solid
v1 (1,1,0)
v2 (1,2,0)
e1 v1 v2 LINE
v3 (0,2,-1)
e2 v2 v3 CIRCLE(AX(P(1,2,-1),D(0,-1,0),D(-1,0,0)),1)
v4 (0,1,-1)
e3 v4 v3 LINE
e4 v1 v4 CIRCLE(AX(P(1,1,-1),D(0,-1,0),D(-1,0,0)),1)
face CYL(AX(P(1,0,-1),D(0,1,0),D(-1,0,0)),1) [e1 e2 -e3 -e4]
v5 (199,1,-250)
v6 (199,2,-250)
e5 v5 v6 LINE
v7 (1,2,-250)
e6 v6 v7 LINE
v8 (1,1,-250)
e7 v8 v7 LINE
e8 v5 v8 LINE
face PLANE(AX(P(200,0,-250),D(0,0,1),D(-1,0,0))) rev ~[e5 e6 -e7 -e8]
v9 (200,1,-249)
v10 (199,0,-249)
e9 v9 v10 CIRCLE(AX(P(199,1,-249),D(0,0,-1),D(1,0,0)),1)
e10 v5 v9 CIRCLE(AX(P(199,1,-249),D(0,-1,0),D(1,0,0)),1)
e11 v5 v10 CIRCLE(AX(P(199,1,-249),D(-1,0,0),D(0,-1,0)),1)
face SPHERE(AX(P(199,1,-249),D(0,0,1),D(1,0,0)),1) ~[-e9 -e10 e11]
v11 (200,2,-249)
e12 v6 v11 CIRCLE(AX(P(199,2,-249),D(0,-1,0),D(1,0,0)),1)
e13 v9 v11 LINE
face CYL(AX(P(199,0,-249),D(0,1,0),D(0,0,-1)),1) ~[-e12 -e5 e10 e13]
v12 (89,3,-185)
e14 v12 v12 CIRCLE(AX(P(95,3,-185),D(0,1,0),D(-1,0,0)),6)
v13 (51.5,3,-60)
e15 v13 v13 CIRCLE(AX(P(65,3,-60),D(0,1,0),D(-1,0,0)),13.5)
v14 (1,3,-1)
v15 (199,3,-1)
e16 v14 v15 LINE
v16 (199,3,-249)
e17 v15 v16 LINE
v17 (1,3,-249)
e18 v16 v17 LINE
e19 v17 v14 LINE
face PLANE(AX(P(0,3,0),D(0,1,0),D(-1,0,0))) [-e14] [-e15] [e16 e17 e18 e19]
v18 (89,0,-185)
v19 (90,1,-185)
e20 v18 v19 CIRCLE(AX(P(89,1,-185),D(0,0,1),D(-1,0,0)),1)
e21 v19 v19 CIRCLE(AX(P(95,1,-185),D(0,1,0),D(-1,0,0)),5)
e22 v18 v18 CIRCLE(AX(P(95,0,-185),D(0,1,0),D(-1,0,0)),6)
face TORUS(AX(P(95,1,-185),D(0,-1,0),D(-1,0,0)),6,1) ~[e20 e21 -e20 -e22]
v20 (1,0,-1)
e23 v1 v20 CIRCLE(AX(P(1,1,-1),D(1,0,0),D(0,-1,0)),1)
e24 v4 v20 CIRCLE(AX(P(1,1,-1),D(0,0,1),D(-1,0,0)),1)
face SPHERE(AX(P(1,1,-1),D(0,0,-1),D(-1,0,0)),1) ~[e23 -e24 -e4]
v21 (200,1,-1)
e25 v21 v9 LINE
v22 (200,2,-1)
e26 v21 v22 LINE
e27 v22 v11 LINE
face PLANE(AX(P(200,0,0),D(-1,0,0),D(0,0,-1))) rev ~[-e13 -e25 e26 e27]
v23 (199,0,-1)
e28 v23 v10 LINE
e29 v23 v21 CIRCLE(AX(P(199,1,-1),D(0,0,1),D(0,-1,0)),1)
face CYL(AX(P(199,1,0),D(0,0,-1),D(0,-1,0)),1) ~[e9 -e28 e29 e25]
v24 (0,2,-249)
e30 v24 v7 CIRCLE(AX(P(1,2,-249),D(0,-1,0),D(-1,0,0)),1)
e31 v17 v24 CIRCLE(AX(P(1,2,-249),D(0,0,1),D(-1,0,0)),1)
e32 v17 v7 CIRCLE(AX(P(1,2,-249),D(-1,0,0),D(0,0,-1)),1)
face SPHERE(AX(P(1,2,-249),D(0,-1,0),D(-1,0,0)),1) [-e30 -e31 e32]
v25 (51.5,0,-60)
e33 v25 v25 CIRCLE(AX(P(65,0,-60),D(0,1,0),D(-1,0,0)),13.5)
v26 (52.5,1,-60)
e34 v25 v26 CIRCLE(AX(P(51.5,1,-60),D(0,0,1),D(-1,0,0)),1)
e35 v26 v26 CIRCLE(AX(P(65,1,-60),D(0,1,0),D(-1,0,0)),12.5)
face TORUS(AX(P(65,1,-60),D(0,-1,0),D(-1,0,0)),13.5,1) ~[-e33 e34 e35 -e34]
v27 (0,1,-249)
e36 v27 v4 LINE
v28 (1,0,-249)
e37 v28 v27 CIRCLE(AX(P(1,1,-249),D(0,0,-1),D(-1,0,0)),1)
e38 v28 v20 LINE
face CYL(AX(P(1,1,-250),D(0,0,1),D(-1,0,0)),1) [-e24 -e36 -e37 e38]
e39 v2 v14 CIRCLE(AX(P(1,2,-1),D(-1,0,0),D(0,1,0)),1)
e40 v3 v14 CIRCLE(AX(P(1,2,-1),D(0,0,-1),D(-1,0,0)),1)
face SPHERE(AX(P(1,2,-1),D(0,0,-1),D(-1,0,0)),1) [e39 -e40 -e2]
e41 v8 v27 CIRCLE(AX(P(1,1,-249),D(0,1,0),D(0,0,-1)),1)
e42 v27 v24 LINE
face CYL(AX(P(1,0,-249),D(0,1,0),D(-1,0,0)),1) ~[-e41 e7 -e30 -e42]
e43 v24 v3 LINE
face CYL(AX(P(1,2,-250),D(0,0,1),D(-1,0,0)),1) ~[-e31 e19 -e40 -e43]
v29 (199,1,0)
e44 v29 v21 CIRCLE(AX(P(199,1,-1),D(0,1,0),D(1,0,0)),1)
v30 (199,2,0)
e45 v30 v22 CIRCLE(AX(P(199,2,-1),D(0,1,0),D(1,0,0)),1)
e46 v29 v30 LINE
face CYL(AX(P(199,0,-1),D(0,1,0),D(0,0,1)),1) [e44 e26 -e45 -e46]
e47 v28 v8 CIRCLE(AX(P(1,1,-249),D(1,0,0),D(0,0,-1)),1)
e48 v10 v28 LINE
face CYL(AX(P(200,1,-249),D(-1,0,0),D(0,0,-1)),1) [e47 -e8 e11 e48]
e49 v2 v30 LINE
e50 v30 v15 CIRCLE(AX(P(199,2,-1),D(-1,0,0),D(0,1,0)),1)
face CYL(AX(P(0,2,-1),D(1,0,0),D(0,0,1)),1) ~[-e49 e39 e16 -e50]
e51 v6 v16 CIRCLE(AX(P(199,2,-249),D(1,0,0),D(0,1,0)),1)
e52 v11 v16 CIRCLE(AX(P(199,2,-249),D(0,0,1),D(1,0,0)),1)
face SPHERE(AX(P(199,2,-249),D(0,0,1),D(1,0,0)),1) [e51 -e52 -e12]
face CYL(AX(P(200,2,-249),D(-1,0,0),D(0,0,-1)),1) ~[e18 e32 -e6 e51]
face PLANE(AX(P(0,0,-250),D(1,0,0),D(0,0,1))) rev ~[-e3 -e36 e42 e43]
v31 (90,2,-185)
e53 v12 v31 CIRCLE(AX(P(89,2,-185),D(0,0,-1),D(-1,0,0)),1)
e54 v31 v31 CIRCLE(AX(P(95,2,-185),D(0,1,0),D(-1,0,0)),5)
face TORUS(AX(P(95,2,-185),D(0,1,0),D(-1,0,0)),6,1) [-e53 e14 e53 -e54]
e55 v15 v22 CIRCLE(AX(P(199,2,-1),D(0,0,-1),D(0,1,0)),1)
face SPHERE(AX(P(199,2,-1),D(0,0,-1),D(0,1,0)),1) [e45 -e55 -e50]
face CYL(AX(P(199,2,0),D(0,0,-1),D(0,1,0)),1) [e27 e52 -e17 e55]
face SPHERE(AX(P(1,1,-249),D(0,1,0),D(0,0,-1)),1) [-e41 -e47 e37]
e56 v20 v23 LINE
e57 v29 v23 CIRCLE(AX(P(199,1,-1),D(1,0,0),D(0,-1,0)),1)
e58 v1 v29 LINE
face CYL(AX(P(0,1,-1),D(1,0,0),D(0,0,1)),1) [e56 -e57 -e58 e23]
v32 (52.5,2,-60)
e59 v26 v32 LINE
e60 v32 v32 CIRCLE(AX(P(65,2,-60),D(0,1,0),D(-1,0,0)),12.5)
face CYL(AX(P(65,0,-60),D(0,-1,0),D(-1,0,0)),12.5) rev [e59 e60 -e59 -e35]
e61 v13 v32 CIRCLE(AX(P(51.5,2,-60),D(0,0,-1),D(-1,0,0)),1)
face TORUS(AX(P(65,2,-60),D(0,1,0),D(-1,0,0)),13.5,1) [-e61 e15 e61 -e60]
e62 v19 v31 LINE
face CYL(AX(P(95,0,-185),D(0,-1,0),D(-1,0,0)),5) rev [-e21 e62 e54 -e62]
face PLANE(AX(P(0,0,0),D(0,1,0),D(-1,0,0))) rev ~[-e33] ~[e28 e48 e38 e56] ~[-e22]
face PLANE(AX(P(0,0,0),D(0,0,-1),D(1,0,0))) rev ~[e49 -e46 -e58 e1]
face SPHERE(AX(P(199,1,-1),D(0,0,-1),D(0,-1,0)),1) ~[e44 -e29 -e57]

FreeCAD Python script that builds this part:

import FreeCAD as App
import Part
import Sketcher
from FreeCAD import Vector
Q = App.Units.Quantity

doc = App.newDocument("Part")
body = doc.addObject("PartDesign::Body", "Body")

# Sketch on XZ plane
sketch1 = body.newObject("Sketcher::SketchObject", "Sketch")
sketch1.AttachmentSupport = (doc.getObject("XZ_Plane"), [""])
sketch1.MapMode = "FlatFace"
sketch1.addGeometry([
    Part.LineSegment(Vector(0, -250, 0), Vector(0, 0, 0)),  # 0
    Part.LineSegment(Vector(0, 0, 0), Vector(200, 0, 0)),  # 1
    Part.LineSegment(Vector(200, 0, 0), Vector(200, -250, 0)),  # 2
    Part.LineSegment(Vector(200, -250, 0), Vector(0, -250, 0)),  # 3
    Part.Circle(Vector(95, -185, 0), Vector(0, 0, 1), 5),  # 4
    Part.Circle(Vector(65, -60, 0), Vector(0, 0, 1), 12),  # 5
], False)
sketch1.addConstraint([
    Sketcher.Constraint("Coincident", 0, 2, 1, 1),
    Sketcher.Constraint("Coincident", 1, 2, 2, 1),
    Sketcher.Constraint("Coincident", 2, 2, 3, 1),
    Sketcher.Constraint("Coincident", 3, 2, 0, 1),
    Sketcher.Constraint("Vertical", 0),
    Sketcher.Constraint("Horizontal", 1),
    Sketcher.Constraint("Vertical", 2),
    Sketcher.Constraint("Horizontal", 3),
    Sketcher.Constraint("Coincident", 0, 2, -1, 1),
    Sketcher.Constraint("Diameter", 4, Q("10 mm")),
    Sketcher.Constraint("Diameter", 5, Q("25 mm")),
    Sketcher.Constraint("DistanceX", 1, 1, 1, 2, Q("200 mm")),
    Sketcher.Constraint("DistanceY", 0, 1, 0, 2, Q("250 mm")),
    Sketcher.Constraint("DistanceX", -1, 1, 4, 3, Q("95 mm")),
    Sketcher.Constraint("DistanceX", -1, 1, 5, 3, Q("65 mm")),
    Sketcher.Constraint("DistanceY", 5, 3, -1, 1, Q("60 mm")),
    Sketcher.Constraint("DistanceY", 4, 3, 5, 3, Q("125 mm")),
])
pad1 = body.newObject("PartDesign::Pad", "Pad")
pad1.Profile = sketch1
pad1.Length = 3
pad1.Reversed = True
doc.recompute()

fillet = body.newObject("PartDesign::Fillet", "Fillet")
fillet.Base = (pad1, ["Edge1"])
fillet.UseAllEdges = True
fillet.Radius = 1

doc.recompute()
